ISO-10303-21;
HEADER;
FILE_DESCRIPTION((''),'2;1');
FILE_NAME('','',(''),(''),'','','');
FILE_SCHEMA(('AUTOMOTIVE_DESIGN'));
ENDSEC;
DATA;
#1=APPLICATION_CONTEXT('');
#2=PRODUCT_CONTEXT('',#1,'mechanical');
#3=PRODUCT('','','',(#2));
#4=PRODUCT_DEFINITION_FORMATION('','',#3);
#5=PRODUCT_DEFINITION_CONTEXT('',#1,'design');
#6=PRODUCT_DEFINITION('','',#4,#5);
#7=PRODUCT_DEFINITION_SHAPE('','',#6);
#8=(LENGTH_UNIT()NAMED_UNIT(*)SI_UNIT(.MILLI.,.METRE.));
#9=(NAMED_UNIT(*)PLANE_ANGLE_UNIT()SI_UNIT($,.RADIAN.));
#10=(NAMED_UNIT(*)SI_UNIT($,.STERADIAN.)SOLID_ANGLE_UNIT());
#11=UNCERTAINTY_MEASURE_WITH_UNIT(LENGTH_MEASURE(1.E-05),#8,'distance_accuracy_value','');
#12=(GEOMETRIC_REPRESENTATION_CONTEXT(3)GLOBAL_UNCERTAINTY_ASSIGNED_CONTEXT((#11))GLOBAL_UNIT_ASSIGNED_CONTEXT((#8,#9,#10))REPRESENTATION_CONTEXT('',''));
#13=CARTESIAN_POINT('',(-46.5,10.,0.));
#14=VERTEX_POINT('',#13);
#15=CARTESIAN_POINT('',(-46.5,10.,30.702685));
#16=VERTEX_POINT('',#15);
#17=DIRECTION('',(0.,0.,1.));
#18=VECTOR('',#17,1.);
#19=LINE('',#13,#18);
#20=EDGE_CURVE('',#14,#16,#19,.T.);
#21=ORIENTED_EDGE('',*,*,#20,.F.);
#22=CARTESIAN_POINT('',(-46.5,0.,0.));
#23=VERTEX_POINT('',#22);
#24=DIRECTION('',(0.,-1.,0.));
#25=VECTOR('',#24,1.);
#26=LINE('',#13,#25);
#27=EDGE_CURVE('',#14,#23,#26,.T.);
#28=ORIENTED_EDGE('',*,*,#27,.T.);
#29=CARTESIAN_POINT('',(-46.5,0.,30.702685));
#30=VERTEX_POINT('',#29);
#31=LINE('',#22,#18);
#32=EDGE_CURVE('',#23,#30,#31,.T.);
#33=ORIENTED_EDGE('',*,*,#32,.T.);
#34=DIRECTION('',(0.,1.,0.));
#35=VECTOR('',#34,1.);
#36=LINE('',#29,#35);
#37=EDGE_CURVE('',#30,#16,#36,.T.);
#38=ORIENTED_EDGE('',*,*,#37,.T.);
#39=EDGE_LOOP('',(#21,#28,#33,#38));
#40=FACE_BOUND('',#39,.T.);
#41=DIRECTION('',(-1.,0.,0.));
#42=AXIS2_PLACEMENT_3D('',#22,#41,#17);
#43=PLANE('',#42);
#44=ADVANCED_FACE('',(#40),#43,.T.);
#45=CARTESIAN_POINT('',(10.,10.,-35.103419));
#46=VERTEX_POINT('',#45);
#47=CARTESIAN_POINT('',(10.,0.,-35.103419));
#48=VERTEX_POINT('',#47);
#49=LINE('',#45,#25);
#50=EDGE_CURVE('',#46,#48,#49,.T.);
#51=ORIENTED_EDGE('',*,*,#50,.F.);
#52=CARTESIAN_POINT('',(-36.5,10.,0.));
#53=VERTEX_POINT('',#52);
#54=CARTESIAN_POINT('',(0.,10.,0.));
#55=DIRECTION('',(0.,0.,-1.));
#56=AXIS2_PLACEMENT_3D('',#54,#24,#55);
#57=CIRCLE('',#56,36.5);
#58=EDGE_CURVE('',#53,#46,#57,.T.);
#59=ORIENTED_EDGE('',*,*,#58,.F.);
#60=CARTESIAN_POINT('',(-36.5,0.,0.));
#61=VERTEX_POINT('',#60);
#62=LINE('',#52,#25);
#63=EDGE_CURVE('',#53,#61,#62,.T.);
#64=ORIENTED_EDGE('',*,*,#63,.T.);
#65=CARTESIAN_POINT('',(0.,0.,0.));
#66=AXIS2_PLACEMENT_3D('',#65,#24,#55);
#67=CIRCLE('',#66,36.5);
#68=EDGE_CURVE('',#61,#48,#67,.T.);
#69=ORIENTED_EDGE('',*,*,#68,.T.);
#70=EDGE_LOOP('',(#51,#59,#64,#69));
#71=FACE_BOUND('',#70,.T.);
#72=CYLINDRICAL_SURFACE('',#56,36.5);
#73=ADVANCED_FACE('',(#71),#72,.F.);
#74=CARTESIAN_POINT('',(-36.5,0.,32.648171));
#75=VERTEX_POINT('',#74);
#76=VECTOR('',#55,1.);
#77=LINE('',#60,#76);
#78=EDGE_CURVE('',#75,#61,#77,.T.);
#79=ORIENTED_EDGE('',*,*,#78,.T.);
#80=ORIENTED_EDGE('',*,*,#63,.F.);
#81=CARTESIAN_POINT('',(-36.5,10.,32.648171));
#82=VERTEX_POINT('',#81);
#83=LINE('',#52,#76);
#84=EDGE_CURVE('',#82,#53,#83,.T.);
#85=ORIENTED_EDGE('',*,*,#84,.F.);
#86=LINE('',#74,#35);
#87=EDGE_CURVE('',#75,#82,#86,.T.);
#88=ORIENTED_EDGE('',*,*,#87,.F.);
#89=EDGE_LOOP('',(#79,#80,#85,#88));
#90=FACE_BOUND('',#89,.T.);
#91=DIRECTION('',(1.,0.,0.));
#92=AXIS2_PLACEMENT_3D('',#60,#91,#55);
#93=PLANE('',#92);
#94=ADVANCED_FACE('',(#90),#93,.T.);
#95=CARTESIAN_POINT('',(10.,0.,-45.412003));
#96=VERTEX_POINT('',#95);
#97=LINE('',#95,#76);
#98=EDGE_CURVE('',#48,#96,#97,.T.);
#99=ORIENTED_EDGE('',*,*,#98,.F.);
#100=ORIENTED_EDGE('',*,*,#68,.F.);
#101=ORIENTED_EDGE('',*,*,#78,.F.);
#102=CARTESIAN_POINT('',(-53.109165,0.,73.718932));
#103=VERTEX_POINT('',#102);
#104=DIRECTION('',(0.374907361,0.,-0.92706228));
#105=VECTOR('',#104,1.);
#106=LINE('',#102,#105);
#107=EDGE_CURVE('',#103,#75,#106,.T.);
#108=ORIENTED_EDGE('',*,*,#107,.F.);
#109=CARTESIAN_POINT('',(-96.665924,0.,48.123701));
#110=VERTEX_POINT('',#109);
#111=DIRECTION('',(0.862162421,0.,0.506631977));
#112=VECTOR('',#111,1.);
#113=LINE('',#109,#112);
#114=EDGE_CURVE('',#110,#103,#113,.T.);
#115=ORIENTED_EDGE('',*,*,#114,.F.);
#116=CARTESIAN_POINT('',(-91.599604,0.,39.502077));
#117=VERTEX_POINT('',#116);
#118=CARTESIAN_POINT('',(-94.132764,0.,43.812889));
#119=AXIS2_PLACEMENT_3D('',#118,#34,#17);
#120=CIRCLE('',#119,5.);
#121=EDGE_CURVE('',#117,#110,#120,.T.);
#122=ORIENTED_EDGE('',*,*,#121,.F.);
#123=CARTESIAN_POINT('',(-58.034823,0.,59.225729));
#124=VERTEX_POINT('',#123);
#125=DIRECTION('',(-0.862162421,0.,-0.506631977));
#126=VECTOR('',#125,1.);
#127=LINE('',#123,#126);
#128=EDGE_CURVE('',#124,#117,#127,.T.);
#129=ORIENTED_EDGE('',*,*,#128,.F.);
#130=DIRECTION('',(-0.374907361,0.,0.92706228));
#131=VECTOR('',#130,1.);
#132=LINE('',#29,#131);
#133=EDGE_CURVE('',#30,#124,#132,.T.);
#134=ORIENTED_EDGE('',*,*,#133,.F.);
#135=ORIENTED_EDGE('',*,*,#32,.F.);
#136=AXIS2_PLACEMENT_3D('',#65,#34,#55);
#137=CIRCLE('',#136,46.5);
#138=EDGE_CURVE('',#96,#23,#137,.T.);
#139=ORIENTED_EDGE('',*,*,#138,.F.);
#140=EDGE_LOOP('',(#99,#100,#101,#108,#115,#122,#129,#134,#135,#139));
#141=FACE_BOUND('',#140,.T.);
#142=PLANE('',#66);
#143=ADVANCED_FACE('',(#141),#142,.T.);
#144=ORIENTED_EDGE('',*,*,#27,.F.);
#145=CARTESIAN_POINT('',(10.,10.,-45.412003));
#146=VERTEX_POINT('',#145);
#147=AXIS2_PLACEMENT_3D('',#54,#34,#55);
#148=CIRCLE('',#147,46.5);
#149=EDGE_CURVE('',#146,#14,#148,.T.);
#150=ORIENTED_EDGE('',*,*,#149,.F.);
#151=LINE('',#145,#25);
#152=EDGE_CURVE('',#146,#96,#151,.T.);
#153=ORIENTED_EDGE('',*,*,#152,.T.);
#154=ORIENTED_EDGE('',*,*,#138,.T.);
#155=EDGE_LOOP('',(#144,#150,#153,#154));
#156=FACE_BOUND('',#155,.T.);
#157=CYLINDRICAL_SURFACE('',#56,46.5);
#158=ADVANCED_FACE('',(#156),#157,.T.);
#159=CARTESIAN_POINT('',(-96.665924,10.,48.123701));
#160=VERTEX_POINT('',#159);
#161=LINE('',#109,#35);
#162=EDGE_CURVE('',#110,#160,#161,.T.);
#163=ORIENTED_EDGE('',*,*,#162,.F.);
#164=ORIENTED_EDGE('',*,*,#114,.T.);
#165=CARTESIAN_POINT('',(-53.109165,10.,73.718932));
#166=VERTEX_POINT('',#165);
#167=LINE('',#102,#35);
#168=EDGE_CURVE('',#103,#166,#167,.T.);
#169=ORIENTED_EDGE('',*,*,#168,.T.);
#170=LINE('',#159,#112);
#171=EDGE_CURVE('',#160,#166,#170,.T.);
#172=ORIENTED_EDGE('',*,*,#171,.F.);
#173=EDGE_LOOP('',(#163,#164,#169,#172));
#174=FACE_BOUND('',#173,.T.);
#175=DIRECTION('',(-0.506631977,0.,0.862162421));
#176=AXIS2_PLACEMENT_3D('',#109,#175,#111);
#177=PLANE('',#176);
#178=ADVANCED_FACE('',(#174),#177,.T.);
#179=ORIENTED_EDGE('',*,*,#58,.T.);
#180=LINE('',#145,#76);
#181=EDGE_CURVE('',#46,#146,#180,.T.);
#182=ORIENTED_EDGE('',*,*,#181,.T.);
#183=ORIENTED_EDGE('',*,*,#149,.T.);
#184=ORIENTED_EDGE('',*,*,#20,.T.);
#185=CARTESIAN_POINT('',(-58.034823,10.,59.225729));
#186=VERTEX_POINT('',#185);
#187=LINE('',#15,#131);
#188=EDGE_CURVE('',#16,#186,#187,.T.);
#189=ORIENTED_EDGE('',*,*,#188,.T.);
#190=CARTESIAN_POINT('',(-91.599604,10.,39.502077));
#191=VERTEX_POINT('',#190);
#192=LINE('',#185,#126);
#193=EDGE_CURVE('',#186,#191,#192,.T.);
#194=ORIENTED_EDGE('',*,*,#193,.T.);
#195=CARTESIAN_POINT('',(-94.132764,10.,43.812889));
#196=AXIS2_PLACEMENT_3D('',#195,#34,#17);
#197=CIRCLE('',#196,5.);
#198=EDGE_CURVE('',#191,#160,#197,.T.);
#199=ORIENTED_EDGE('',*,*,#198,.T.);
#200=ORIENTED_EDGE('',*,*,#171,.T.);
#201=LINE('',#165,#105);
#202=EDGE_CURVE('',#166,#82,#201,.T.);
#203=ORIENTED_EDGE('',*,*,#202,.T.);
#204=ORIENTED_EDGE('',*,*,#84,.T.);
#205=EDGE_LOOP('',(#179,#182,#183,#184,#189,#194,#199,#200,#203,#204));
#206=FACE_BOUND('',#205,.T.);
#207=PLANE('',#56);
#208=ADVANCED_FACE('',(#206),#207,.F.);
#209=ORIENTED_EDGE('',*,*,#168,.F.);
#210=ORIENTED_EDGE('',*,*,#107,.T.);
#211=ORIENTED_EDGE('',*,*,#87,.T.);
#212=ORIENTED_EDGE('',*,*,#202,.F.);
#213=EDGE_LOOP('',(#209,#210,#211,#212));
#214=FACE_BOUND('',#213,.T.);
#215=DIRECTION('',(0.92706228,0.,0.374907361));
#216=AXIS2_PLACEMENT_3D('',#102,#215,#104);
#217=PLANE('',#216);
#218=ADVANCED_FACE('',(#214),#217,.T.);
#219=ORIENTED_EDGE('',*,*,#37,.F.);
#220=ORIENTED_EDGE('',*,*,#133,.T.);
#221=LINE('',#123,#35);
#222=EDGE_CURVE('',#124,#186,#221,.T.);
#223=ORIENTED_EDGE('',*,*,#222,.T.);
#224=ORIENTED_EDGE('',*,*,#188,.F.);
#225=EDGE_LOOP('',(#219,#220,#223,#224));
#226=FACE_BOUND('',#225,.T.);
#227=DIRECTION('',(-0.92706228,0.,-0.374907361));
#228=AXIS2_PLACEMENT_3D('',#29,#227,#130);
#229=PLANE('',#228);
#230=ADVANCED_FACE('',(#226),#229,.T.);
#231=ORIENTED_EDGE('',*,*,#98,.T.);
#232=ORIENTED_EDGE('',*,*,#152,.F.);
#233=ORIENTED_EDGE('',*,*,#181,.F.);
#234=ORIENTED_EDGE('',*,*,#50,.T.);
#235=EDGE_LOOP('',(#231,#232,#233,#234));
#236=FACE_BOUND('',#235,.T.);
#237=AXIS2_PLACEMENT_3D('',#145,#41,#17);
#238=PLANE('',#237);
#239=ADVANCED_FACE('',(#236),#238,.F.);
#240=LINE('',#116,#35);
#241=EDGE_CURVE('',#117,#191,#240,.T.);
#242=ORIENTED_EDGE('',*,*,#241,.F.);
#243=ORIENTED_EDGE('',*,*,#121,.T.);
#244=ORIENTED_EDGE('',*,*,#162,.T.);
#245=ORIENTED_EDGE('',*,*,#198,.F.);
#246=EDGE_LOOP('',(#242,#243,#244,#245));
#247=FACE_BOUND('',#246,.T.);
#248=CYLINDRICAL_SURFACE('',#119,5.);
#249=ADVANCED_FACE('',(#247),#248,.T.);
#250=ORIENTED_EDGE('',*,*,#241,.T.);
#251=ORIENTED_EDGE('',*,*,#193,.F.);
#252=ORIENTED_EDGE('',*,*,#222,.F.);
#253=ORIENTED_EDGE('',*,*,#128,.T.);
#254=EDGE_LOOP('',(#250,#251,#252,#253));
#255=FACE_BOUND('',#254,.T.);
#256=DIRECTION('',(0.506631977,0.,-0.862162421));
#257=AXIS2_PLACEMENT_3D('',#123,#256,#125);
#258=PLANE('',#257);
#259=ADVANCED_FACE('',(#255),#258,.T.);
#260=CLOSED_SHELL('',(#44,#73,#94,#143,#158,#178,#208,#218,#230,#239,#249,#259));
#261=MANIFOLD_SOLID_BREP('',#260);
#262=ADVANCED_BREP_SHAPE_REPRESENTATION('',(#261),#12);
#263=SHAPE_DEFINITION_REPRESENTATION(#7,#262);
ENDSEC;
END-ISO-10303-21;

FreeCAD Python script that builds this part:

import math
import FreeCAD as App
import Part
import Sketcher

V = App.Vector

doc = App.newDocument("Part")
body = doc.addObject("PartDesign::Body", "Body")

sketch1 = doc.addObject("Sketcher::SketchObject", "Sketch")
body.addObject(sketch1)
sketch1.AttachmentSupport = (doc.XZ_Plane, [""])
sketch1.MapMode = "FlatFace"
sketch1.addGeometry([
    Part.LineSegment(V(10, -35, 0), V(10, -45, 0)),
    Part.ArcOfCircle(Part.Circle(V(0, 0, 0), V(0, 0, 1), 46), math.radians(180), math.radians(282)),
    Part.LineSegment(V(-46, 0, 0), V(-36, 0, 0)),
    Part.ArcOfCircle(Part.Circle(V(0, 0, 0), V(0, 0, 1), 36), math.radians(180), math.radians(286)),
], False)
sketch1.addConstraint([
    Sketcher.Constraint("Coincident", 0, 2, 1, 2),
    Sketcher.Constraint("Coincident", 1, 1, 2, 1),
    Sketcher.Constraint("Coincident", 2, 2, 3, 1),
    Sketcher.Constraint("Coincident", 3, 2, 0, 1),
    Sketcher.Constraint("Vertical", 0),
    Sketcher.Constraint("Horizontal", 2),
    Sketcher.Constraint("Coincident", 1, 3, -1, 1),
    Sketcher.Constraint("Coincident", 3, 3, -1, 1),
    Sketcher.Constraint("PointOnObject", 1, 1, -1),
    Sketcher.Constraint("Radius", 1, 46.5),
    Sketcher.Constraint("Radius", 3, 36.5),
    Sketcher.Constraint("DistanceX", -1, 1, 0, 2, 10.0),
])
pad1 = doc.addObject("PartDesign::Pad", "Pad")
body.addObject(pad1)
pad1.Profile = sketch1
pad1.Length = 10
pad1.Reversed = True

sketch2 = doc.addObject("Sketcher::SketchObject", "Sketch001")
body.addObject(sketch2)
sketch2.AttachmentSupport = (doc.XZ_Plane, [""])
sketch2.MapMode = "FlatFace"
sketch2.AttachmentOffset = App.Placement(V(0, 0, -10), App.Rotation())
sketch2.addGeometry([
    Part.LineSegment(V(-36, 0, 0), V(-46, 0, 0)),
    Part.LineSegment(V(-46, 0, 0), V(-46, 31, 0)),
    Part.LineSegment(V(-46, 31, 0), V(-58, 59, 0)),
    Part.LineSegment(V(-58, 59, 0), V(-92, 40, 0)),
    Part.ArcOfCircle(Part.Circle(V(-94, 44, 0), V(0, 0, 1), 5), math.radians(120), math.radians(300)),
    Part.LineSegment(V(-97, 48, 0), V(-53, 74, 0)),
    Part.LineSegment(V(-53, 74, 0), V(-36, 33, 0)),
    Part.LineSegment(V(-36, 33, 0), V(-36, 0, 0)),
], False)
sketch2.addConstraint([
    Sketcher.Constraint("Coincident", 0, 2, 1, 1),
    Sketcher.Constraint("Coincident", 1, 2, 2, 1),
    Sketcher.Constraint("Coincident", 2, 2, 3, 1),
    Sketcher.Constraint("Tangent", 3, 2, 4, 2),
    Sketcher.Constraint("Tangent", 4, 1, 5, 1),
    Sketcher.Constraint("Coincident", 5, 2, 6, 1),
    Sketcher.Constraint("Coincident", 6, 2, 7, 1),
    Sketcher.Constraint("Coincident", 7, 2, 0, 1),
    Sketcher.Constraint("Horizontal", 0),
    Sketcher.Constraint("Vertical", 1),
    Sketcher.Constraint("Vertical", 7),
    Sketcher.Constraint("PointOnObject", 0, 2, -1),
    Sketcher.Constraint("Parallel", 3, 5),
    Sketcher.Constraint("Parallel", 2, 6),
    Sketcher.Constraint("Radius", 4, 5.0),
    Sketcher.Constraint("DistanceX", 0, 2, 0, 1, 10.0),
    Sketcher.Constraint("DistanceX", 0, 2, -1, 1, 46.5),
    Sketcher.Constraint("DistanceY", 7, 2, 7, 1, 32.648171),
    Sketcher.Constraint("DistanceY", -1, 1, 4, 1, 48.123701),
    Sketcher.Constraint("DistanceX", 4, 1, 2, 2, 38.631101),
    Sketcher.Constraint("DistanceX", 4, 3, 5, 2, 41.023598),
    Sketcher.Constraint("Distance", 2, 30.767128),
    Sketcher.Constraint("DistanceY", 1, 1, 1, 2, 30.702685),
])
pad2 = doc.addObject("PartDesign::Pad", "Pad001")
body.addObject(pad2)
pad2.Profile = sketch2
pad2.Length = 10

doc.recompute()
